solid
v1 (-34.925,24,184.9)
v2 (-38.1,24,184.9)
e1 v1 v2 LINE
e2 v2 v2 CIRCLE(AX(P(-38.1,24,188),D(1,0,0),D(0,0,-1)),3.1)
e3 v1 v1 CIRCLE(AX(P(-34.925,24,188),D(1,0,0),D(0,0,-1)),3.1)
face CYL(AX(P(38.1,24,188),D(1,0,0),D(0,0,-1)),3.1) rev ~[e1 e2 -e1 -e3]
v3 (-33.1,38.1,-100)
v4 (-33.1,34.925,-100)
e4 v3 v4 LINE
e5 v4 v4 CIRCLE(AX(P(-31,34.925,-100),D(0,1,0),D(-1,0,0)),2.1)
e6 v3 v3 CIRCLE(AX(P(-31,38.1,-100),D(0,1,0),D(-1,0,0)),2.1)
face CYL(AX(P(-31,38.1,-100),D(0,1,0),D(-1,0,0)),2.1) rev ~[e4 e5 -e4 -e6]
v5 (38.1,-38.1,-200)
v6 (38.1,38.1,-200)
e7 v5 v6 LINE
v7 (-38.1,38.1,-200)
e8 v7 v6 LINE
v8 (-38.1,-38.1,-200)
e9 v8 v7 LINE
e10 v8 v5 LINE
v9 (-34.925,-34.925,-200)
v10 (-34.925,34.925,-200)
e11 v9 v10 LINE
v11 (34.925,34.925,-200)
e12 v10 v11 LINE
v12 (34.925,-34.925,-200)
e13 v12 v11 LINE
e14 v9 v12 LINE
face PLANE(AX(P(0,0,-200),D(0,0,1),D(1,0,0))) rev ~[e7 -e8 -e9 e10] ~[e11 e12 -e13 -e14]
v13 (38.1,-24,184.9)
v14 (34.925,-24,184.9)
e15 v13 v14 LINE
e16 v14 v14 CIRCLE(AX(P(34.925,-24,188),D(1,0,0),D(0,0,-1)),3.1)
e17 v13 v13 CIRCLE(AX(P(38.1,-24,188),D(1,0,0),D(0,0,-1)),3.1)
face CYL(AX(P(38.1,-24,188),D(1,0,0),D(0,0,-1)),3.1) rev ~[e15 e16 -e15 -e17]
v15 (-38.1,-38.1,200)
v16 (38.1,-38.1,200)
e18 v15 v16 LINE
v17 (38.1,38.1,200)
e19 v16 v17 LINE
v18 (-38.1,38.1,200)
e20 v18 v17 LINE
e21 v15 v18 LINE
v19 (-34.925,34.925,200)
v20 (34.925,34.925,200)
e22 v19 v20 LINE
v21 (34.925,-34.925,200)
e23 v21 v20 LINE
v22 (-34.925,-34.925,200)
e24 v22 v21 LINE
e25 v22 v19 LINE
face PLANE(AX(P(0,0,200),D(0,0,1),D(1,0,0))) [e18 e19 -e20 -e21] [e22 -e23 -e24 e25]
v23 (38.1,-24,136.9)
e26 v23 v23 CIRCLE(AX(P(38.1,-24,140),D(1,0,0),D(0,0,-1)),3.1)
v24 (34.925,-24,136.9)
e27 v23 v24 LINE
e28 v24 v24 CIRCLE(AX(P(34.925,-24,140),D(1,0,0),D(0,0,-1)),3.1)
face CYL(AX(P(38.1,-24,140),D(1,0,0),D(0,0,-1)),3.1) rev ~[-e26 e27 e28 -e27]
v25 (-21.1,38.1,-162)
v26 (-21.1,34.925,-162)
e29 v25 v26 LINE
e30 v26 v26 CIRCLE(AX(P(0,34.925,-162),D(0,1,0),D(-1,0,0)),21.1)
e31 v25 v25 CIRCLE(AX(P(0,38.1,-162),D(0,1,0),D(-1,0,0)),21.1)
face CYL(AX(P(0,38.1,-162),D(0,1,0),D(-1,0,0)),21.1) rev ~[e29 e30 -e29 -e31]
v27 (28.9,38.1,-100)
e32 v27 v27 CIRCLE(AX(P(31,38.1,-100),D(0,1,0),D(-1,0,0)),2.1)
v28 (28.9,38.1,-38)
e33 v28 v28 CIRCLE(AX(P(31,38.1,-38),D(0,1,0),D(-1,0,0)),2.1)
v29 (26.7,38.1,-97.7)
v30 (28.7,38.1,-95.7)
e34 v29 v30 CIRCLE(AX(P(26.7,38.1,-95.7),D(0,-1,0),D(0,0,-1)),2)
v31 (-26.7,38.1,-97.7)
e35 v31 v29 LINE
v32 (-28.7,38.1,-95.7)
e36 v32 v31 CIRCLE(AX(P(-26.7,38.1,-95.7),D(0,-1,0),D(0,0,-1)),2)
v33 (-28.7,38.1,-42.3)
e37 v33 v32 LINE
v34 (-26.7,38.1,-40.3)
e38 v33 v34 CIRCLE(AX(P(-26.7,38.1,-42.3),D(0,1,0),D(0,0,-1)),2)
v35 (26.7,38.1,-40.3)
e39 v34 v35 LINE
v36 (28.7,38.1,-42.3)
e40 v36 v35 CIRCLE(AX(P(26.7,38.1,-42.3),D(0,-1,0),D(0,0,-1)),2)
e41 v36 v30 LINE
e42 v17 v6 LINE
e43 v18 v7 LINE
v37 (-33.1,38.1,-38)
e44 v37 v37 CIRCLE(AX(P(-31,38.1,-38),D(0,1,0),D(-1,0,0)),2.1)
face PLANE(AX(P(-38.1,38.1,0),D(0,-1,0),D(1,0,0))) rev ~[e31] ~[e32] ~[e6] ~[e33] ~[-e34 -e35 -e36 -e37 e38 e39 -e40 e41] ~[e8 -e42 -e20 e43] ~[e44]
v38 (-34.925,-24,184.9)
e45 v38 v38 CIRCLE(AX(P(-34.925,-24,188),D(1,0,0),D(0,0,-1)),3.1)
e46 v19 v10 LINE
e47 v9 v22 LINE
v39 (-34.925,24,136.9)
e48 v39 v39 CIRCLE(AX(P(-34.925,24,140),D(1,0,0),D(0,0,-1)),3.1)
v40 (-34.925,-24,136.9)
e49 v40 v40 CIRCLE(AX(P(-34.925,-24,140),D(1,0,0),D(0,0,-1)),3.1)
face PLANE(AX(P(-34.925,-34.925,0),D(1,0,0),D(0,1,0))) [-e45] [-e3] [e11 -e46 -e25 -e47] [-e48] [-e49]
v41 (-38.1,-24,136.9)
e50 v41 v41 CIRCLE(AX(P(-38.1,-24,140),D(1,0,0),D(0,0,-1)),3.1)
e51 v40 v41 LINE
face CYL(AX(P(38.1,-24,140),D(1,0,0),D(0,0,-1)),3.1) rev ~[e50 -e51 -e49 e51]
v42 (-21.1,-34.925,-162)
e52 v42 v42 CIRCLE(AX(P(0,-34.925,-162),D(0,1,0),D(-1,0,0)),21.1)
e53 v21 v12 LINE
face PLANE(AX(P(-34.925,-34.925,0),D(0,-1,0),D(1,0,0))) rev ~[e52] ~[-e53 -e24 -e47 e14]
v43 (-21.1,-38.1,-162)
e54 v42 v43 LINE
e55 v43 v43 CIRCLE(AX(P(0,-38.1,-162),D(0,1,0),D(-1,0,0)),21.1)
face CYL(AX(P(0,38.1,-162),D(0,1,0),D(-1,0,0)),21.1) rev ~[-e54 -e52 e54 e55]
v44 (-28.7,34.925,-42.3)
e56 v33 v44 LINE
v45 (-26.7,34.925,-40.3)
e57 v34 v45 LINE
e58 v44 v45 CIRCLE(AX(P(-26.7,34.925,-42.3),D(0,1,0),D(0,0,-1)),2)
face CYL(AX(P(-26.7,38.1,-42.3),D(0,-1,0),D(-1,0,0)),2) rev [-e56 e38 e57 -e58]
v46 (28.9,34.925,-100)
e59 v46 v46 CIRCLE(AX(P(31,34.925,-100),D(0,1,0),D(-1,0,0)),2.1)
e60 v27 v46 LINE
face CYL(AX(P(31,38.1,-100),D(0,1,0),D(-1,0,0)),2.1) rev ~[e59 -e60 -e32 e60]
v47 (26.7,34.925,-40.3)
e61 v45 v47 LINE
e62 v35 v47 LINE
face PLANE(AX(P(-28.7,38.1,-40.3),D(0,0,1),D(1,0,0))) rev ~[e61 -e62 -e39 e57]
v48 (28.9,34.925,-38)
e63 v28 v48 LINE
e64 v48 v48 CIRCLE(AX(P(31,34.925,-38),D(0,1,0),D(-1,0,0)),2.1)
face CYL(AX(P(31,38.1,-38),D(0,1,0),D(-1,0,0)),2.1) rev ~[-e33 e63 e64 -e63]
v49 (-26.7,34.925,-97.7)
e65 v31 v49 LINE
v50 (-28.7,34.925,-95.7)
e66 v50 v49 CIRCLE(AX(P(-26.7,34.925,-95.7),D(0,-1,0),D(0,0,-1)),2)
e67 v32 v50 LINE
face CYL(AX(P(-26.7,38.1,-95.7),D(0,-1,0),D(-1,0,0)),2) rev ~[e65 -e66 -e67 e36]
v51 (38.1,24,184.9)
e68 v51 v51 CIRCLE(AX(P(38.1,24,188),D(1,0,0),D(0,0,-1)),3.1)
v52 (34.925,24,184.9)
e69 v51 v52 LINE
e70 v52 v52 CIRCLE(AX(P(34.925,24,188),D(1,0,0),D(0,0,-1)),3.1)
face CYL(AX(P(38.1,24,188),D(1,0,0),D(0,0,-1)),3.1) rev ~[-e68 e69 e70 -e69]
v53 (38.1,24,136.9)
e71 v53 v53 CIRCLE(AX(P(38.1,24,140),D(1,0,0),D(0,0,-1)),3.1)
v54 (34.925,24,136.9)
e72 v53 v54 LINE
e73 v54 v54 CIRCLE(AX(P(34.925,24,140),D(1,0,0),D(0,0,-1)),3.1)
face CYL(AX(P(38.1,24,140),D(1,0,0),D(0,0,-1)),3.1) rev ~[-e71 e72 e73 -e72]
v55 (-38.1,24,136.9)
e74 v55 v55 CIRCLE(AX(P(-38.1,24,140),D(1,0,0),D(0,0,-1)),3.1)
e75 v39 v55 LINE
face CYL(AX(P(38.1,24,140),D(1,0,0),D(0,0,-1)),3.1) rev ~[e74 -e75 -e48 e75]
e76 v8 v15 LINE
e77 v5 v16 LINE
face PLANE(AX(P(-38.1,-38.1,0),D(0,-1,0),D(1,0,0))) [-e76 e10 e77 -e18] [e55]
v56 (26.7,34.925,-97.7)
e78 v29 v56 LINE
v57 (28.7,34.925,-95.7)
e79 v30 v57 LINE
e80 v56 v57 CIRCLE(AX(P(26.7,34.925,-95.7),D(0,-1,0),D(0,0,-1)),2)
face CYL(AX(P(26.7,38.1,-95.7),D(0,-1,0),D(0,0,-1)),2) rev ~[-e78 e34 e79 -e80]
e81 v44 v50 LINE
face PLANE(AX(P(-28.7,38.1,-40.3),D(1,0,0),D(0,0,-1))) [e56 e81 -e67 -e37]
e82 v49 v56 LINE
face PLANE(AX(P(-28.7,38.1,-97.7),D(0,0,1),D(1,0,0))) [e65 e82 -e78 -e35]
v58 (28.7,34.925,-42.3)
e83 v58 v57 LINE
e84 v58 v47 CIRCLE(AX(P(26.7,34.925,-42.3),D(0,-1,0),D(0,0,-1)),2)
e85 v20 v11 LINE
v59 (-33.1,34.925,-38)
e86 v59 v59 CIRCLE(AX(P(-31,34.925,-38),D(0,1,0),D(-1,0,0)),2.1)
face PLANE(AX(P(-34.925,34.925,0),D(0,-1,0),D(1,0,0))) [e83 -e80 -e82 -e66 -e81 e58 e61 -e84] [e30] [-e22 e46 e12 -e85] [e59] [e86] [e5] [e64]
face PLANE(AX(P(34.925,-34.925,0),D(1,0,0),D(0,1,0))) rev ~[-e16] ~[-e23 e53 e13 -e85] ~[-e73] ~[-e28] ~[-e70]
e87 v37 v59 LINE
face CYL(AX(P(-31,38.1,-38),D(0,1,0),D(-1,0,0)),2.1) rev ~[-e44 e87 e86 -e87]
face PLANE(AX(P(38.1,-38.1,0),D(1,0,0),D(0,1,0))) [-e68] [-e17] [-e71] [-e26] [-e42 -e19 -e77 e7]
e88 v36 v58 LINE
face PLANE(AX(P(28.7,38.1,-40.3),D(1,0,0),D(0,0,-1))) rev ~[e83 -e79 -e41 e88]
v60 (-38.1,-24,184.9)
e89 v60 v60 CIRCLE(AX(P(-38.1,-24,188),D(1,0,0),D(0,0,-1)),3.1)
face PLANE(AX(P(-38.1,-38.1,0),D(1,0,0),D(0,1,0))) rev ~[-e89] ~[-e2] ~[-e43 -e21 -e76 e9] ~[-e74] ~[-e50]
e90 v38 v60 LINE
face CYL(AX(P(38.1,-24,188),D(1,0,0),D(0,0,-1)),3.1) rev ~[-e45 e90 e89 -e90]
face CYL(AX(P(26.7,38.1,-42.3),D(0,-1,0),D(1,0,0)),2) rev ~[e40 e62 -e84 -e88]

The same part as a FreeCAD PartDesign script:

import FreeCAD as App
import Part
import Sketcher

V = App.Vector


def edges_at(feature, points):
    """Names of the edges that pass closest to the given points."""
    edges = feature.Shape.Edges
    near = lambda p: min(range(len(edges)), key=lambda i: edges[i].distToShape(Part.Vertex(*p))[0])
    return sorted({f"Edge{near(p) + 1}" for p in points})

doc = App.newDocument("Part")
body = doc.addObject("PartDesign::Body", "Body")

# Sketch on XY plane
sketch1 = body.newObject("Sketcher::SketchObject", "Sketch")
sketch1.AttachmentSupport = (doc.getObject("XY_Plane"), [""])
sketch1.MapMode = "FlatFace"
sketch1.addGeometry([
    Part.LineSegment(V(-38, 38, 0), V(-38, -38, 0)),  # 0
    Part.LineSegment(V(-38, -38, 0), V(38, -38, 0)),  # 1
    Part.LineSegment(V(38, -38, 0), V(38, 38, 0)),  # 2
    Part.LineSegment(V(38, 38, 0), V(-38, 38, 0)),  # 3
    Part.LineSegment(V(35, -35, 0), V(-35, -35, 0)),  # 4
    Part.LineSegment(V(-35, -35, 0), V(-35, 35, 0)),  # 5
    Part.LineSegment(V(-35, 35, 0), V(35, 35, 0)),  # 6
    Part.LineSegment(V(35, 35, 0), V(35, -35, 0)),  # 7
], False)
sketch1.addConstraint([
    Sketcher.Constraint("Coincident", 0, 2, 1, 1),
    Sketcher.Constraint("Coincident", 1, 2, 2, 1),
    Sketcher.Constraint("Coincident", 2, 2, 3, 1),
    Sketcher.Constraint("Coincident", 3, 2, 0, 1),
    Sketcher.Constraint("Coincident", 4, 2, 5, 1),
    Sketcher.Constraint("Coincident", 5, 2, 6, 1),
    Sketcher.Constraint("Coincident", 6, 2, 7, 1),
    Sketcher.Constraint("Coincident", 7, 2, 4, 1),
    Sketcher.Constraint("Vertical", 0),
    Sketcher.Constraint("Horizontal", 1),
    Sketcher.Constraint("Vertical", 2),
    Sketcher.Constraint("Horizontal", 3),
    Sketcher.Constraint("Horizontal", 4),
    Sketcher.Constraint("Vertical", 5),
    Sketcher.Constraint("Horizontal", 6),
    Sketcher.Constraint("Vertical", 7),
    Sketcher.Constraint("Symmetric", 0, 2, 2, 2, -1, 1),
    Sketcher.Constraint("Symmetric", 4, 2, 6, 2, -1, 1),
    Sketcher.Constraint("Equal", 3, 0),
    Sketcher.Constraint("Equal", 6, 5),
    Sketcher.Constraint("DistanceX", 1, 1, 1, 2, 76.2),
    Sketcher.Constraint("DistanceX", 4, 2, 4, 1, 69.85),
])
pad1 = body.newObject("PartDesign::Pad", "Pad")
pad1.Profile = sketch1
pad1.Length = 400
pad1.Midplane = True

# Sketch on YZ plane
sketch2 = body.newObject("Sketcher::SketchObject", "Sketch001")
sketch2.AttachmentSupport = (doc.getObject("YZ_Plane"), [""])
sketch2.MapMode = "FlatFace"
sketch2.AttachmentOffset = App.Placement(V(0, 0, 38.1), App.Rotation())
sketch2.addGeometry([
    Part.Circle(V(24, 140, 0), V(0, 0, 1), 3.1),
    Part.Circle(V(24, 188, 0), V(0, 0, 1), 3.1),
    Part.Circle(V(-24, 140, 0), V(0, 0, 1), 3.1),
    Part.Circle(V(-24, 188, 0), V(0, 0, 1), 3.1),
], False)
sketch2.addConstraint([
    Sketcher.Constraint("Equal", 0, 1),
    Sketcher.Constraint("Equal", 1, 2),
    Sketcher.Constraint("Equal", 2, 3),
    Sketcher.Constraint("Symmetric", 0, 3, 2, 3, -2),
    Sketcher.Constraint("Symmetric", 1, 3, 3, 3, -2),
    Sketcher.Constraint("Vertical", 0, 3, 1, 3),
    Sketcher.Constraint("Diameter", 0, 6.2),
    Sketcher.Constraint("DistanceX", -1, 1, 0, 3, 24.0),
    Sketcher.Constraint("DistanceY", -1, 1, 0, 3, 140.0),
    Sketcher.Constraint("DistanceY", -1, 1, 1, 3, 188.0),
])
pocket1 = body.newObject("PartDesign::Pocket", "Pocket")
pocket1.Profile = sketch2
pocket1.Type = "ThroughAll"

# Sketch on XZ plane
sketch3 = body.newObject("Sketcher::SketchObject", "Sketch002")
sketch3.AttachmentSupport = (doc.getObject("XZ_Plane"), [""])
sketch3.MapMode = "FlatFace"
sketch3.AttachmentOffset = App.Placement(V(0, 0, -38.1), App.Rotation())
sketch3.addGeometry(Part.Circle(V(31, -38, 0), V(0, 0, 1), 2.1), False)
sketch3.addConstraint([
    Sketcher.Constraint("Diameter", 0, 4.2),
    Sketcher.Constraint("DistanceX", -1, 1, 0, 3, 31.0),
    Sketcher.Constraint("DistanceY", 0, 3, -1, 1, 38.0),
])
pocket2 = body.newObject("PartDesign::Pocket", "Pocket001")
pocket2.Profile = sketch3
pocket2.Type = "UpToFirst"
pocket2.Reversed = True

# Sketch on XZ plane
sketch4 = body.newObject("Sketcher::SketchObject", "Sketch003")
sketch4.AttachmentSupport = (doc.getObject("XZ_Plane"), [""])
sketch4.MapMode = "FlatFace"
sketch4.AttachmentOffset = App.Placement(V(0, 0, -38.1), App.Rotation())
sketch4.addGeometry(Part.Circle(V(-31, -100, 0), V(0, 0, 1), 2.1), False)
sketch4.addConstraint([
    Sketcher.Constraint("Diameter", 0, 4.2),
    Sketcher.Constraint("DistanceX", 0, 3, -1, 1, 31.0),
    Sketcher.Constraint("DistanceY", 0, 3, -1, 1, 100.0),
])
pocket3 = body.newObject("PartDesign::Pocket", "Pocket002")
pocket3.Profile = sketch4
pocket3.Type = "UpToFirst"
pocket3.Reversed = True

# Sketch on XZ plane
sketch5 = body.newObject("Sketcher::SketchObject", "Sketch004")
sketch5.AttachmentSupport = (doc.getObject("XZ_Plane"), [""])
sketch5.MapMode = "FlatFace"
sketch5.AttachmentOffset = App.Placement(V(0, 0, -38.1), App.Rotation())
sketch5.addGeometry(Part.Circle(V(-31, -38, 0), V(0, 0, 1), 2.1), False)
sketch5.addConstraint([
    Sketcher.Constraint("Diameter", 0, 4.2),
    Sketcher.Constraint("DistanceX", 0, 3, -1, 1, 31.0),
    Sketcher.Constraint("DistanceY", 0, 3, -1, 1, 38.0),
])
pocket4 = body.newObject("PartDesign::Pocket", "Pocket003")
pocket4.Profile = sketch5
pocket4.Type = "UpToFirst"
pocket4.Reversed = True

# Sketch on XZ plane
sketch6 = body.newObject("Sketcher::SketchObject", "Sketch005")
sketch6.AttachmentSupport = (doc.getObject("XZ_Plane"), [""])
sketch6.MapMode = "FlatFace"
sketch6.AttachmentOffset = App.Placement(V(0, 0, -38.1), App.Rotation())
sketch6.addGeometry(Part.Circle(V(31, -100, 0), V(0, 0, 1), 2.1), False)
sketch6.addConstraint([
    Sketcher.Constraint("Diameter", 0, 4.2),
    Sketcher.Constraint("DistanceX", -1, 1, 0, 3, 31.0),
    Sketcher.Constraint("DistanceY", 0, 3, -1, 1, 100.0),
])
pocket5 = body.newObject("PartDesign::Pocket", "Pocket004")
pocket5.Profile = sketch6
pocket5.Type = "UpToFirst"
pocket5.Reversed = True

# Sketch on XZ plane
sketch7 = body.newObject("Sketcher::SketchObject", "Sketch006")
sketch7.AttachmentSupport = (doc.getObject("XZ_Plane"), [""])
sketch7.MapMode = "FlatFace"
sketch7.AttachmentOffset = App.Placement(V(0, 0, -38.1), App.Rotation())
sketch7.addGeometry([
    Part.LineSegment(V(-29, -98, 0), V(-29, -40, 0)),
    Part.LineSegment(V(-29, -40, 0), V(29, -40, 0)),
    Part.LineSegment(V(29, -40, 0), V(29, -98, 0)),
    Part.LineSegment(V(29, -98, 0), V(-29, -98, 0)),
], False)
sketch7.addConstraint([
    Sketcher.Constraint("Coincident", 0, 2, 1, 1),
    Sketcher.Constraint("Coincident", 1, 2, 2, 1),
    Sketcher.Constraint("Coincident", 2, 2, 3, 1),
    Sketcher.Constraint("Coincident", 3, 2, 0, 1),
    Sketcher.Constraint("Vertical", 0),
    Sketcher.Constraint("Horizontal", 1),
    Sketcher.Constraint("Vertical", 2),
    Sketcher.Constraint("Horizontal", 3),
    Sketcher.Constraint("Equal", 3, 0),
    Sketcher.Constraint("DistanceX", 1, 1, 1, 2, 57.4),
    Sketcher.Constraint("DistanceX", 0, 2, -1, 1, 28.7),
    Sketcher.Constraint("DistanceY", 0, 2, -1, 1, 40.3),
])
pocket6 = body.newObject("PartDesign::Pocket", "Pocket005")
pocket6.Profile = sketch7
pocket6.Type = "UpToFirst"
pocket6.Reversed = True
doc.recompute()

fillet = body.newObject("PartDesign::Fillet", "Fillet")
fillet.Base = (pocket6, edges_at(pocket6, [
    (28.7, 36.513, -97.7),
    (-28.7, 36.513, -97.7),
    (-28.7, 36.513, -40.3),
    (28.7, 36.513, -40.3),
]))
fillet.Radius = 2

# Sketch on XZ plane
sketch8 = body.newObject("Sketcher::SketchObject", "Sketch007")
sketch8.AttachmentSupport = (doc.getObject("XZ_Plane"), [""])
sketch8.MapMode = "FlatFace"
sketch8.AttachmentOffset = App.Placement(V(0, 0, -38.1), App.Rotation())
sketch8.addGeometry(Part.Circle(V(0, -162, 0), V(0, 0, 1), 21), False)
sketch8.addConstraint([
    Sketcher.Constraint("PointOnObject", 0, 3, -2),
    Sketcher.Constraint("Diameter", 0, 42.2),
    Sketcher.Constraint("DistanceY", 0, 3, -1, 1, 162.0),
])
pocket7 = body.newObject("PartDesign::Pocket", "Pocket006")
pocket7.Profile = sketch8
pocket7.Type = "ThroughAll"
pocket7.Reversed = True

doc.recompute()
